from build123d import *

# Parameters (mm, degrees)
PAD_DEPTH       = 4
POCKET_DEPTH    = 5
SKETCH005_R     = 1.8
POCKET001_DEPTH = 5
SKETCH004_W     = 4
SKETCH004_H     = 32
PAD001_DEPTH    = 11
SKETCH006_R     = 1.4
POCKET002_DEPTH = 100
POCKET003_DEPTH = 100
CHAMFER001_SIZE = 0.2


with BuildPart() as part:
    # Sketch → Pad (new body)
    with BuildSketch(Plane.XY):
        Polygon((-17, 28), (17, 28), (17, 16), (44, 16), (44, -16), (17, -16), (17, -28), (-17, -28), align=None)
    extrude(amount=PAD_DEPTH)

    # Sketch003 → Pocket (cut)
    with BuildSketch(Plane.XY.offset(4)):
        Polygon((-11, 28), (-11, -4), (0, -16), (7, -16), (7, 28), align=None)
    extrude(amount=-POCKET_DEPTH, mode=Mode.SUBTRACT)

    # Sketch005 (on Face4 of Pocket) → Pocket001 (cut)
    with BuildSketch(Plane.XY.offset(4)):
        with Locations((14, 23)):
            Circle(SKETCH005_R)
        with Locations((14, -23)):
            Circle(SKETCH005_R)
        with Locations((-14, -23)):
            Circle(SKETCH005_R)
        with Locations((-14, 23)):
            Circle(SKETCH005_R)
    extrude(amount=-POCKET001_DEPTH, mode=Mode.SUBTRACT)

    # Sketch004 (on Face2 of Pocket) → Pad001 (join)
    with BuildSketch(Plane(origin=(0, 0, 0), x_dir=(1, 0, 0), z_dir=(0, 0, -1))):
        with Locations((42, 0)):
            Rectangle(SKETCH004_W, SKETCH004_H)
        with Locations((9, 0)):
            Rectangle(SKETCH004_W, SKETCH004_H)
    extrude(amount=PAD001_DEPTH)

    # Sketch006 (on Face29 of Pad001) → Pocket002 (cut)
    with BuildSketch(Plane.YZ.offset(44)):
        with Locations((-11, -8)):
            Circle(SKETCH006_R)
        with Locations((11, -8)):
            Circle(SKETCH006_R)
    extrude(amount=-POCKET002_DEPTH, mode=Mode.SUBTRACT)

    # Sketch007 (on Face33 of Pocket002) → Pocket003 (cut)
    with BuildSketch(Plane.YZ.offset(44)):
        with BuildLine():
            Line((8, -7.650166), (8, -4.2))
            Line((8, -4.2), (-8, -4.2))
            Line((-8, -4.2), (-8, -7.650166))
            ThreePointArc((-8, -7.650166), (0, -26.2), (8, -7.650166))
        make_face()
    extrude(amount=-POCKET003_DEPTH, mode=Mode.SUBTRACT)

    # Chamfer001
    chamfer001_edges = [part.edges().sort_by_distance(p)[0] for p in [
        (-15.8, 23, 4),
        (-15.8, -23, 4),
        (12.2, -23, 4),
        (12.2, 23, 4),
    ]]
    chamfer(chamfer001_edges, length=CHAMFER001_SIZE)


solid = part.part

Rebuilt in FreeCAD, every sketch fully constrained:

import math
import FreeCAD as App
import Part
import Sketcher
from FreeCAD import Vector
Q = App.Units.Quantity


def edges_at(feature, points):
    """Names of the edges that pass closest to the given points."""
    edges = feature.Shape.Edges
    near = lambda p: min(range(len(edges)), key=lambda i: edges[i].distToShape(Part.Vertex(*p))[0])
    return sorted({f"Edge{near(p) + 1}" for p in points})

doc = App.newDocument("Part")
body = doc.addObject("PartDesign::Body", "Body")

sketch1 = body.newObject("Sketcher::SketchObject", "Sketch")
sketch1.AttachmentSupport = (doc.getObject("XY_Plane"), [""])
sketch1.MapMode = "FlatFace"
sketch1.addGeometry([
    Part.LineSegment(Vector(17, 28, 0), Vector(-17, 28, 0)),
    Part.LineSegment(Vector(-17, 28, 0), Vector(-17, -28, 0)),
    Part.LineSegment(Vector(-17, -28, 0), Vector(17, -28, 0)),
    Part.LineSegment(Vector(17, -28, 0), Vector(17, -16, 0)),
    Part.LineSegment(Vector(17, -16, 0), Vector(44, -16, 0)),
    Part.LineSegment(Vector(44, -16, 0), Vector(44, 16, 0)),
    Part.LineSegment(Vector(44, 16, 0), Vector(17, 16, 0)),
    Part.LineSegment(Vector(17, 16, 0), Vector(17, 28, 0)),
], False)
sketch1.addConstraint([
    Sketcher.Constraint("Coincident", 0, 2, 1, 1),
    Sketcher.Constraint("Coincident", 1, 2, 2, 1),
    Sketcher.Constraint("Coincident", 2, 2, 3, 1),
    Sketcher.Constraint("Coincident", 3, 2, 4, 1),
    Sketcher.Constraint("Coincident", 4, 2, 5, 1),
    Sketcher.Constraint("Coincident", 5, 2, 6, 1),
    Sketcher.Constraint("Coincident", 6, 2, 7, 1),
    Sketcher.Constraint("Coincident", 7, 2, 0, 1),
    Sketcher.Constraint("Horizontal", 0),
    Sketcher.Constraint("Vertical", 1),
    Sketcher.Constraint("Horizontal", 2),
    Sketcher.Constraint("Vertical", 3),
    Sketcher.Constraint("Horizontal", 4),
    Sketcher.Constraint("Vertical", 5),
    Sketcher.Constraint("Horizontal", 6),
    Sketcher.Constraint("Vertical", 7),
    Sketcher.Constraint("Symmetric", 0, 2, 2, 2, -1, 1),
    Sketcher.Constraint("Symmetric", 3, 2, 6, 2, -1),
    Sketcher.Constraint("DistanceX", 0, 2, 0, 1, Q("34 mm")),
    Sketcher.Constraint("DistanceX", 4, 1, 4, 2, Q("27 mm")),
    Sketcher.Constraint("DistanceY", 1, 2, 1, 1, Q("56 mm")),
    Sketcher.Constraint("DistanceY", 3, 1, 3, 2, Q("12 mm")),
])
pad1 = body.newObject("PartDesign::Pad", "Pad")
pad1.Profile = sketch1
pad1.Length = 4

sketch2 = body.newObject("Sketcher::SketchObject", "Sketch001")
sketch2.AttachmentSupport = (doc.getObject("XY_Plane"), [""])
sketch2.MapMode = "FlatFace"
sketch2.AttachmentOffset = App.Placement(Vector(0, 0, 4), App.Rotation())
sketch2.addGeometry([
    Part.LineSegment(Vector(-11, 28, 0), Vector(-11, -4, 0)),
    Part.LineSegment(Vector(-11, -4, 0), Vector(0, -16, 0)),
    Part.LineSegment(Vector(0, -16, 0), Vector(7, -16, 0)),
    Part.LineSegment(Vector(7, -16, 0), Vector(7, 28, 0)),
    Part.LineSegment(Vector(7, 28, 0), Vector(-11, 28, 0)),
], False)
sketch2.addConstraint([
    Sketcher.Constraint("Coincident", 0, 2, 1, 1),
    Sketcher.Constraint("Coincident", 1, 2, 2, 1),
    Sketcher.Constraint("Coincident", 2, 2, 3, 1),
    Sketcher.Constraint("Coincident", 3, 2, 4, 1),
    Sketcher.Constraint("Coincident", 4, 2, 0, 1),
    Sketcher.Constraint("Vertical", 0),
    Sketcher.Constraint("Horizontal", 2),
    Sketcher.Constraint("Vertical", 3),
    Sketcher.Constraint("Horizontal", 4),
    Sketcher.Constraint("PointOnObject", 1, 2, -2),
    Sketcher.Constraint("DistanceX", 2, 1, 2, 2, Q("7 mm")),
    Sketcher.Constraint("DistanceX", 4, 2, 4, 1, Q("18 mm")),
    Sketcher.Constraint("DistanceY", 0, 2, 0, 1, Q("32 mm")),
    Sketcher.Constraint("DistanceY", 3, 1, 3, 2, Q("44 mm")),
    Sketcher.Constraint("DistanceY", 0, 2, -1, 1, Q("4 mm")),
])
pocket1 = body.newObject("PartDesign::Pocket", "Pocket")
pocket1.Profile = sketch2
pocket1.Length = 5

sketch3 = body.newObject("Sketcher::SketchObject", "Sketch002")
sketch3.AttachmentSupport = (doc.getObject("XY_Plane"), [""])
sketch3.MapMode = "FlatFace"
sketch3.AttachmentOffset = App.Placement(Vector(0, 0, 4), App.Rotation())
sketch3.addGeometry([
    Part.Circle(Vector(14, 23, 0), Vector(0, 0, 1), 1.8),
    Part.Circle(Vector(14, -23, 0), Vector(0, 0, 1), 1.8),
    Part.Circle(Vector(-14, -23, 0), Vector(0, 0, 1), 1.8),
    Part.Circle(Vector(-14, 23, 0), Vector(0, 0, 1), 1.8),
], False)
sketch3.addConstraint([
    Sketcher.Constraint("Equal", 0, 1),
    Sketcher.Constraint("Equal", 1, 2),
    Sketcher.Constraint("Equal", 2, 3),
    Sketcher.Constraint("Symmetric", 0, 3, 2, 3, -1, 1),
    Sketcher.Constraint("Symmetric", 1, 3, 3, 3, -1, 1),
    Sketcher.Constraint("Symmetric", 1, 3, 2, 3, -2),
    Sketcher.Constraint("Diameter", 0, Q("3.6 mm")),
    Sketcher.Constraint("DistanceX", -1, 1, 0, 3, Q("14 mm")),
    Sketcher.Constraint("DistanceY", -1, 1, 0, 3, Q("23 mm")),
])
pocket2 = body.newObject("PartDesign::Pocket", "Pocket001")
pocket2.Profile = sketch3
pocket2.Length = 5

sketch4 = body.newObject("Sketcher::SketchObject", "Sketch003")
sketch4.AttachmentSupport = (doc.getObject("XY_Plane"), [""])
sketch4.MapMode = "FlatFace"
sketch4.addGeometry([
    Part.LineSegment(Vector(40, -16, 0), Vector(40, 16, 0)),
    Part.LineSegment(Vector(40, 16, 0), Vector(44, 16, 0)),
    Part.LineSegment(Vector(44, 16, 0), Vector(44, -16, 0)),
    Part.LineSegment(Vector(44, -16, 0), Vector(40, -16, 0)),
    Part.LineSegment(Vector(7, -16, 0), Vector(7, 16, 0)),
    Part.LineSegment(Vector(7, 16, 0), Vector(11, 16, 0)),
    Part.LineSegment(Vector(11, 16, 0), Vector(11, -16, 0)),
    Part.LineSegment(Vector(11, -16, 0), Vector(7, -16, 0)),
], False)
sketch4.addConstraint([
    Sketcher.Constraint("Coincident", 0, 2, 1, 1),
    Sketcher.Constraint("Coincident", 1, 2, 2, 1),
    Sketcher.Constraint("Coincident", 2, 2, 3, 1),
    Sketcher.Constraint("Coincident", 3, 2, 0, 1),
    Sketcher.Constraint("Coincident", 4, 2, 5, 1),
    Sketcher.Constraint("Coincident", 5, 2, 6, 1),
    Sketcher.Constraint("Coincident", 6, 2, 7, 1),
    Sketcher.Constraint("Coincident", 7, 2, 4, 1),
    Sketcher.Constraint("Vertical", 0),
    Sketcher.Constraint("Horizontal", 1),
    Sketcher.Constraint("Vertical", 2),
    Sketcher.Constraint("Horizontal", 3),
    Sketcher.Constraint("Vertical", 4),
    Sketcher.Constraint("Horizontal", 5),
    Sketcher.Constraint("Vertical", 6),
    Sketcher.Constraint("Horizontal", 7),
    Sketcher.Constraint("Horizontal", 1, 2, 4, 2),
    Sketcher.Constraint("Horizontal", 3, 2, 6, 2),
    Sketcher.Constraint("Equal", 3, 5),
    Sketcher.Constraint("DistanceX", 1, 1, 1, 2, Q("4 mm")),
    Sketcher.Constraint("DistanceY", 0, 1, 0, 2, Q("32 mm")),
    Sketcher.Constraint("DistanceX", -1, 1, 0, 2, Q("40 mm")),
    Sketcher.Constraint("DistanceY", -1, 1, 0, 2, Q("16 mm")),
    Sketcher.Constraint("DistanceX", -1, 1, 4, 2, Q("7 mm")),
])
pad2 = body.newObject("PartDesign::Pad", "Pad001")
pad2.Profile = sketch4
pad2.Length = 11
pad2.Reversed = True

sketch5 = body.newObject("Sketcher::SketchObject", "Sketch004")
sketch5.AttachmentSupport = (doc.getObject("YZ_Plane"), [""])
sketch5.MapMode = "FlatFace"
sketch5.AttachmentOffset = App.Placement(Vector(0, 0, 44), App.Rotation())
sketch5.addGeometry([
    Part.Circle(Vector(-11, -8, 0), Vector(0, 0, 1), 1.4),
    Part.Circle(Vector(11, -8, 0), Vector(0, 0, 1), 1.4),
], False)
sketch5.addConstraint([
    Sketcher.Constraint("Equal", 0, 1),
    Sketcher.Constraint("Symmetric", 0, 3, 1, 3, -2),
    Sketcher.Constraint("Diameter", 0, Q("2.8 mm")),
    Sketcher.Constraint("DistanceX", 0, 3, -1, 1, Q("11 mm")),
    Sketcher.Constraint("DistanceY", 0, 3, -1, 1, Q("8 mm")),
])
pocket3 = body.newObject("PartDesign::Pocket", "Pocket002")
pocket3.Profile = sketch5
pocket3.Length = 100

sketch6 = body.newObject("Sketcher::SketchObject", "Sketch005")
sketch6.AttachmentSupport = (doc.getObject("YZ_Plane"), [""])
sketch6.MapMode = "FlatFace"
sketch6.AttachmentOffset = App.Placement(Vector(0, 0, 44), App.Rotation())
sketch6.addGeometry([
    Part.LineSegment(Vector(8, -7.650166, 0), Vector(8, -4.2, 0)),
    Part.LineSegment(Vector(8, -4.2, 0), Vector(-8, -4.2, 0)),
    Part.LineSegment(Vector(-8, -4.2, 0), Vector(-8, -7.650166, 0)),
    Part.ArcOfCircle(Part.Circle(Vector(0, -15.2, 0), Vector(0, 0, 1), 11), math.radians(136.658243), math.radians(403.341757)),
], False)
sketch6.addConstraint([
    Sketcher.Constraint("Coincident", 0, 2, 1, 1),
    Sketcher.Constraint("Coincident", 1, 2, 2, 1),
    Sketcher.Constraint("Coincident", 2, 2, 3, 1),
    Sketcher.Constraint("Coincident", 3, 2, 0, 1),
    Sketcher.Constraint("Vertical", 0),
    Sketcher.Constraint("Horizontal", 1),
    Sketcher.Constraint("Vertical", 2),
    Sketcher.Constraint("Symmetric", 2, 2, 3, 2, -2),
    Sketcher.Constraint("Radius", 3, Q("11 mm")),
    Sketcher.Constraint("DistanceX", 1, 2, 1, 1, Q("16 mm")),
    Sketcher.Constraint("DistanceY", 3, 3, 0, 2, Q("11 mm")),
    Sketcher.Constraint("DistanceY", 3, 3, -1, 1, Q("15.2 mm")),
])
pocket4 = body.newObject("PartDesign::Pocket", "Pocket003")
pocket4.Profile = sketch6
pocket4.Length = 100
doc.recompute()

chamfer = body.newObject("PartDesign::Chamfer", "Chamfer")
chamfer.Base = (pocket4, edges_at(pocket4, [
    (-15.8, 23, 4),
    (-15.8, -23, 4),
    (12.2, -23, 4),
    (12.2, 23, 4),
]))
chamfer.Size = 0.2

doc.recompute()
